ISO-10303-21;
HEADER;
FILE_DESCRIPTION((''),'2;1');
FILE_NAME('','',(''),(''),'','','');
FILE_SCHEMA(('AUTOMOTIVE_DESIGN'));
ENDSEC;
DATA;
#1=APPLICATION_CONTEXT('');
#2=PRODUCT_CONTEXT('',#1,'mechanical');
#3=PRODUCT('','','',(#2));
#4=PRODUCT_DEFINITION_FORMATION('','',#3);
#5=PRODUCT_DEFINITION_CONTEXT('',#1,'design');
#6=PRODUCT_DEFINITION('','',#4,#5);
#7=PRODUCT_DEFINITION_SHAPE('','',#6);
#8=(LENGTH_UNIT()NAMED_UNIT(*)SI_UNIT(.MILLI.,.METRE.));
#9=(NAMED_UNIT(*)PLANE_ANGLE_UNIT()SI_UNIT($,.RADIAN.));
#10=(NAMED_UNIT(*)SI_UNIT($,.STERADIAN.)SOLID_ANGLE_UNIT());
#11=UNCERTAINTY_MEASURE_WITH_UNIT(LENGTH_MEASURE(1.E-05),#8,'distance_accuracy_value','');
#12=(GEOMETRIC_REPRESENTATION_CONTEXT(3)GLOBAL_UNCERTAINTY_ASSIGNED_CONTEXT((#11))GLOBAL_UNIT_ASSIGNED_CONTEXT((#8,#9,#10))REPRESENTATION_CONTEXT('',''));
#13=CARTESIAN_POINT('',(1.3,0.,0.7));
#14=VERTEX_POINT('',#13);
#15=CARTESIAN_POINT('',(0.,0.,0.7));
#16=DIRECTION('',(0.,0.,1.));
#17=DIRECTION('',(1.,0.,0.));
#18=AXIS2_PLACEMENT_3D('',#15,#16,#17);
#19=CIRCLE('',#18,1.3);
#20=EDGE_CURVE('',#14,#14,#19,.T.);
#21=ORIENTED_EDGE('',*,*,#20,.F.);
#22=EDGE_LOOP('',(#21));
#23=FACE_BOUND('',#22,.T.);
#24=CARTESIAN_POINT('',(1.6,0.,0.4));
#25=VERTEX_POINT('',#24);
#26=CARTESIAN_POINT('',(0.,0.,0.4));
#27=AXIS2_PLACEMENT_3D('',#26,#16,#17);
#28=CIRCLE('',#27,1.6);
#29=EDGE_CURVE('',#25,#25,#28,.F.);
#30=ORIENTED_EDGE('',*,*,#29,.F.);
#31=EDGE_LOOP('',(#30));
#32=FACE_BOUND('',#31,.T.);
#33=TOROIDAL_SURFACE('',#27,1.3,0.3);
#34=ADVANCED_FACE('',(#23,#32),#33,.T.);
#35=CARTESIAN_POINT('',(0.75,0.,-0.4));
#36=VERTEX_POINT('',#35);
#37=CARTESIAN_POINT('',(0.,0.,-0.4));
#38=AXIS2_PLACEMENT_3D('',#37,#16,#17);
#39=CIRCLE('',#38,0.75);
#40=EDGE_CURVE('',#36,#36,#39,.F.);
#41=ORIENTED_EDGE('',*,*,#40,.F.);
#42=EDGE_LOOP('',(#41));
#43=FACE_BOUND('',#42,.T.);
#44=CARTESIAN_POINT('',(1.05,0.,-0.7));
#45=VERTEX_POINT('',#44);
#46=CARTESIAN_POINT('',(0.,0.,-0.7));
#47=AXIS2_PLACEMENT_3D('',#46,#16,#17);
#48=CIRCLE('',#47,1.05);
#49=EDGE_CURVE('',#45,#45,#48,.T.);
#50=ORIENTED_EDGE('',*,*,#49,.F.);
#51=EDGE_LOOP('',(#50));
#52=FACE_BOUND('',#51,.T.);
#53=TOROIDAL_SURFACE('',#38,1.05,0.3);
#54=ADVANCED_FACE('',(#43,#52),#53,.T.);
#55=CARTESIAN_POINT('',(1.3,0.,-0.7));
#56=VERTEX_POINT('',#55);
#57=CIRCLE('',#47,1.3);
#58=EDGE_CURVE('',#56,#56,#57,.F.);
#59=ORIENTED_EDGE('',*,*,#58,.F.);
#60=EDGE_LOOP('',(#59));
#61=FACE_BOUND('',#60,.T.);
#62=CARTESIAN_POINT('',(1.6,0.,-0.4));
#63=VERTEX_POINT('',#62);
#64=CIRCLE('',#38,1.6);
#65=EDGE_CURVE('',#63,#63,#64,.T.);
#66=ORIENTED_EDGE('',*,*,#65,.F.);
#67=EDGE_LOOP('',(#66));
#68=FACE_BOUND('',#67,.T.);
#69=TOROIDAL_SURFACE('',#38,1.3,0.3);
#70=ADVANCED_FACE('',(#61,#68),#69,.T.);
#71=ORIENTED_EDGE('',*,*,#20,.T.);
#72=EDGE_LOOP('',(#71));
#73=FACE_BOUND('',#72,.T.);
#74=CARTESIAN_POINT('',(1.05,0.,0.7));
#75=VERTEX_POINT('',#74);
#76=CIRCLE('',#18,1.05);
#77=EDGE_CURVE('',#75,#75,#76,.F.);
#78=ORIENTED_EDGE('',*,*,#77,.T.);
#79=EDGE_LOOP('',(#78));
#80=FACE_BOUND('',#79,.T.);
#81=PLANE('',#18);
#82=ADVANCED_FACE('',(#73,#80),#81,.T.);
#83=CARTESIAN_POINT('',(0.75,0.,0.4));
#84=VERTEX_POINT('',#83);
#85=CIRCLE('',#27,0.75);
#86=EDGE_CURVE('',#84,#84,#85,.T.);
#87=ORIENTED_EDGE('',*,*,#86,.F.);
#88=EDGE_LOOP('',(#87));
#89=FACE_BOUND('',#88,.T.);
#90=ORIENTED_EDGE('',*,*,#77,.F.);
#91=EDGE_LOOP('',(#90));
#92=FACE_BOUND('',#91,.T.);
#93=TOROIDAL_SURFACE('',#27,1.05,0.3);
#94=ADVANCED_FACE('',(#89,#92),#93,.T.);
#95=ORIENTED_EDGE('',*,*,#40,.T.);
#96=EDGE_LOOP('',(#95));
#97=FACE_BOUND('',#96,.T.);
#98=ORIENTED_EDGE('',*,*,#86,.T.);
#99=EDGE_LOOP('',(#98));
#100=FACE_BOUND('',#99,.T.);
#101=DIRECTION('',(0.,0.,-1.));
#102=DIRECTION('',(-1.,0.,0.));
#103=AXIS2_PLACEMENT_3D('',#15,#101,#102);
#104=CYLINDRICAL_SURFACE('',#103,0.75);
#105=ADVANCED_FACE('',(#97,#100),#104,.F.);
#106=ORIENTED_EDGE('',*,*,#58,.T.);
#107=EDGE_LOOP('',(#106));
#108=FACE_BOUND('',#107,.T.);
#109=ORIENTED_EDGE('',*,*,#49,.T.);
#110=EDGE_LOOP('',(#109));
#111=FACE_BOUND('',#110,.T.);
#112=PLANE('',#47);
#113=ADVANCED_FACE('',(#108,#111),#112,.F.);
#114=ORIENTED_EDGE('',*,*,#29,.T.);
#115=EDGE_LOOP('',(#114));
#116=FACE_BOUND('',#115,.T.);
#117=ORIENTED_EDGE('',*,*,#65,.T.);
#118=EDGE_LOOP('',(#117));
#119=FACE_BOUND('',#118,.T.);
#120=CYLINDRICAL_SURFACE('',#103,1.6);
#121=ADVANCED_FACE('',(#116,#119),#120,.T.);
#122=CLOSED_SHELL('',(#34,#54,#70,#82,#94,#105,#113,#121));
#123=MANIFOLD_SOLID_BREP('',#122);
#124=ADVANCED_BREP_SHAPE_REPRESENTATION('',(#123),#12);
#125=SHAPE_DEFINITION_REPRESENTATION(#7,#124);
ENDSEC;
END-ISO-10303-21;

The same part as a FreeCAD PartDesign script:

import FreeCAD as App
import Part
import Sketcher
from FreeCAD import Vector
Q = App.Units.Quantity


def edges_at(feature, points):
    """Names of the edges that pass closest to the given points."""
    edges = feature.Shape.Edges
    near = lambda p: min(range(len(edges)), key=lambda i: edges[i].distToShape(Part.Vertex(*p))[0])
    return sorted({f"Edge{near(p) + 1}" for p in points})

doc = App.newDocument("Part")
body = doc.addObject("PartDesign::Body", "Body")

# Sketch on XY plane
sketch1 = body.newObject("Sketcher::SketchObject", "Sketch")
sketch1.AttachmentSupport = (doc.getObject("XY_Plane"), [""])
sketch1.MapMode = "FlatFace"
sketch1.addGeometry([
    Part.Circle(Vector(0, 0, 0), Vector(0, 0, 1), 1.6),
    Part.Circle(Vector(0, 0, 0), Vector(0, 0, 1), 0.8),
], False)
sketch1.addConstraint([
    Sketcher.Constraint("Coincident", 0, 3, -1, 1),
    Sketcher.Constraint("Coincident", 1, 3, -1, 1),
    Sketcher.Constraint("Diameter", 0, Q("3.2 mm")),
    Sketcher.Constraint("Diameter", 1, Q("1.5 mm")),
])
pad1 = body.newObject("PartDesign::Pad", "Pad")
pad1.Profile = sketch1
pad1.Length = 1.4
pad1.Midplane = True
doc.recompute()

fillet = body.newObject("PartDesign::Fillet", "Fillet")
fillet.Base = (pad1, edges_at(pad1, [
    (-1.6, 0, -0.7),
    (-1.6, 0, 0.7),
    (-0.75, 0, -0.7),
    (-0.75, 0, 0.7),
]))
fillet.Radius = 0.3

doc.recompute()
